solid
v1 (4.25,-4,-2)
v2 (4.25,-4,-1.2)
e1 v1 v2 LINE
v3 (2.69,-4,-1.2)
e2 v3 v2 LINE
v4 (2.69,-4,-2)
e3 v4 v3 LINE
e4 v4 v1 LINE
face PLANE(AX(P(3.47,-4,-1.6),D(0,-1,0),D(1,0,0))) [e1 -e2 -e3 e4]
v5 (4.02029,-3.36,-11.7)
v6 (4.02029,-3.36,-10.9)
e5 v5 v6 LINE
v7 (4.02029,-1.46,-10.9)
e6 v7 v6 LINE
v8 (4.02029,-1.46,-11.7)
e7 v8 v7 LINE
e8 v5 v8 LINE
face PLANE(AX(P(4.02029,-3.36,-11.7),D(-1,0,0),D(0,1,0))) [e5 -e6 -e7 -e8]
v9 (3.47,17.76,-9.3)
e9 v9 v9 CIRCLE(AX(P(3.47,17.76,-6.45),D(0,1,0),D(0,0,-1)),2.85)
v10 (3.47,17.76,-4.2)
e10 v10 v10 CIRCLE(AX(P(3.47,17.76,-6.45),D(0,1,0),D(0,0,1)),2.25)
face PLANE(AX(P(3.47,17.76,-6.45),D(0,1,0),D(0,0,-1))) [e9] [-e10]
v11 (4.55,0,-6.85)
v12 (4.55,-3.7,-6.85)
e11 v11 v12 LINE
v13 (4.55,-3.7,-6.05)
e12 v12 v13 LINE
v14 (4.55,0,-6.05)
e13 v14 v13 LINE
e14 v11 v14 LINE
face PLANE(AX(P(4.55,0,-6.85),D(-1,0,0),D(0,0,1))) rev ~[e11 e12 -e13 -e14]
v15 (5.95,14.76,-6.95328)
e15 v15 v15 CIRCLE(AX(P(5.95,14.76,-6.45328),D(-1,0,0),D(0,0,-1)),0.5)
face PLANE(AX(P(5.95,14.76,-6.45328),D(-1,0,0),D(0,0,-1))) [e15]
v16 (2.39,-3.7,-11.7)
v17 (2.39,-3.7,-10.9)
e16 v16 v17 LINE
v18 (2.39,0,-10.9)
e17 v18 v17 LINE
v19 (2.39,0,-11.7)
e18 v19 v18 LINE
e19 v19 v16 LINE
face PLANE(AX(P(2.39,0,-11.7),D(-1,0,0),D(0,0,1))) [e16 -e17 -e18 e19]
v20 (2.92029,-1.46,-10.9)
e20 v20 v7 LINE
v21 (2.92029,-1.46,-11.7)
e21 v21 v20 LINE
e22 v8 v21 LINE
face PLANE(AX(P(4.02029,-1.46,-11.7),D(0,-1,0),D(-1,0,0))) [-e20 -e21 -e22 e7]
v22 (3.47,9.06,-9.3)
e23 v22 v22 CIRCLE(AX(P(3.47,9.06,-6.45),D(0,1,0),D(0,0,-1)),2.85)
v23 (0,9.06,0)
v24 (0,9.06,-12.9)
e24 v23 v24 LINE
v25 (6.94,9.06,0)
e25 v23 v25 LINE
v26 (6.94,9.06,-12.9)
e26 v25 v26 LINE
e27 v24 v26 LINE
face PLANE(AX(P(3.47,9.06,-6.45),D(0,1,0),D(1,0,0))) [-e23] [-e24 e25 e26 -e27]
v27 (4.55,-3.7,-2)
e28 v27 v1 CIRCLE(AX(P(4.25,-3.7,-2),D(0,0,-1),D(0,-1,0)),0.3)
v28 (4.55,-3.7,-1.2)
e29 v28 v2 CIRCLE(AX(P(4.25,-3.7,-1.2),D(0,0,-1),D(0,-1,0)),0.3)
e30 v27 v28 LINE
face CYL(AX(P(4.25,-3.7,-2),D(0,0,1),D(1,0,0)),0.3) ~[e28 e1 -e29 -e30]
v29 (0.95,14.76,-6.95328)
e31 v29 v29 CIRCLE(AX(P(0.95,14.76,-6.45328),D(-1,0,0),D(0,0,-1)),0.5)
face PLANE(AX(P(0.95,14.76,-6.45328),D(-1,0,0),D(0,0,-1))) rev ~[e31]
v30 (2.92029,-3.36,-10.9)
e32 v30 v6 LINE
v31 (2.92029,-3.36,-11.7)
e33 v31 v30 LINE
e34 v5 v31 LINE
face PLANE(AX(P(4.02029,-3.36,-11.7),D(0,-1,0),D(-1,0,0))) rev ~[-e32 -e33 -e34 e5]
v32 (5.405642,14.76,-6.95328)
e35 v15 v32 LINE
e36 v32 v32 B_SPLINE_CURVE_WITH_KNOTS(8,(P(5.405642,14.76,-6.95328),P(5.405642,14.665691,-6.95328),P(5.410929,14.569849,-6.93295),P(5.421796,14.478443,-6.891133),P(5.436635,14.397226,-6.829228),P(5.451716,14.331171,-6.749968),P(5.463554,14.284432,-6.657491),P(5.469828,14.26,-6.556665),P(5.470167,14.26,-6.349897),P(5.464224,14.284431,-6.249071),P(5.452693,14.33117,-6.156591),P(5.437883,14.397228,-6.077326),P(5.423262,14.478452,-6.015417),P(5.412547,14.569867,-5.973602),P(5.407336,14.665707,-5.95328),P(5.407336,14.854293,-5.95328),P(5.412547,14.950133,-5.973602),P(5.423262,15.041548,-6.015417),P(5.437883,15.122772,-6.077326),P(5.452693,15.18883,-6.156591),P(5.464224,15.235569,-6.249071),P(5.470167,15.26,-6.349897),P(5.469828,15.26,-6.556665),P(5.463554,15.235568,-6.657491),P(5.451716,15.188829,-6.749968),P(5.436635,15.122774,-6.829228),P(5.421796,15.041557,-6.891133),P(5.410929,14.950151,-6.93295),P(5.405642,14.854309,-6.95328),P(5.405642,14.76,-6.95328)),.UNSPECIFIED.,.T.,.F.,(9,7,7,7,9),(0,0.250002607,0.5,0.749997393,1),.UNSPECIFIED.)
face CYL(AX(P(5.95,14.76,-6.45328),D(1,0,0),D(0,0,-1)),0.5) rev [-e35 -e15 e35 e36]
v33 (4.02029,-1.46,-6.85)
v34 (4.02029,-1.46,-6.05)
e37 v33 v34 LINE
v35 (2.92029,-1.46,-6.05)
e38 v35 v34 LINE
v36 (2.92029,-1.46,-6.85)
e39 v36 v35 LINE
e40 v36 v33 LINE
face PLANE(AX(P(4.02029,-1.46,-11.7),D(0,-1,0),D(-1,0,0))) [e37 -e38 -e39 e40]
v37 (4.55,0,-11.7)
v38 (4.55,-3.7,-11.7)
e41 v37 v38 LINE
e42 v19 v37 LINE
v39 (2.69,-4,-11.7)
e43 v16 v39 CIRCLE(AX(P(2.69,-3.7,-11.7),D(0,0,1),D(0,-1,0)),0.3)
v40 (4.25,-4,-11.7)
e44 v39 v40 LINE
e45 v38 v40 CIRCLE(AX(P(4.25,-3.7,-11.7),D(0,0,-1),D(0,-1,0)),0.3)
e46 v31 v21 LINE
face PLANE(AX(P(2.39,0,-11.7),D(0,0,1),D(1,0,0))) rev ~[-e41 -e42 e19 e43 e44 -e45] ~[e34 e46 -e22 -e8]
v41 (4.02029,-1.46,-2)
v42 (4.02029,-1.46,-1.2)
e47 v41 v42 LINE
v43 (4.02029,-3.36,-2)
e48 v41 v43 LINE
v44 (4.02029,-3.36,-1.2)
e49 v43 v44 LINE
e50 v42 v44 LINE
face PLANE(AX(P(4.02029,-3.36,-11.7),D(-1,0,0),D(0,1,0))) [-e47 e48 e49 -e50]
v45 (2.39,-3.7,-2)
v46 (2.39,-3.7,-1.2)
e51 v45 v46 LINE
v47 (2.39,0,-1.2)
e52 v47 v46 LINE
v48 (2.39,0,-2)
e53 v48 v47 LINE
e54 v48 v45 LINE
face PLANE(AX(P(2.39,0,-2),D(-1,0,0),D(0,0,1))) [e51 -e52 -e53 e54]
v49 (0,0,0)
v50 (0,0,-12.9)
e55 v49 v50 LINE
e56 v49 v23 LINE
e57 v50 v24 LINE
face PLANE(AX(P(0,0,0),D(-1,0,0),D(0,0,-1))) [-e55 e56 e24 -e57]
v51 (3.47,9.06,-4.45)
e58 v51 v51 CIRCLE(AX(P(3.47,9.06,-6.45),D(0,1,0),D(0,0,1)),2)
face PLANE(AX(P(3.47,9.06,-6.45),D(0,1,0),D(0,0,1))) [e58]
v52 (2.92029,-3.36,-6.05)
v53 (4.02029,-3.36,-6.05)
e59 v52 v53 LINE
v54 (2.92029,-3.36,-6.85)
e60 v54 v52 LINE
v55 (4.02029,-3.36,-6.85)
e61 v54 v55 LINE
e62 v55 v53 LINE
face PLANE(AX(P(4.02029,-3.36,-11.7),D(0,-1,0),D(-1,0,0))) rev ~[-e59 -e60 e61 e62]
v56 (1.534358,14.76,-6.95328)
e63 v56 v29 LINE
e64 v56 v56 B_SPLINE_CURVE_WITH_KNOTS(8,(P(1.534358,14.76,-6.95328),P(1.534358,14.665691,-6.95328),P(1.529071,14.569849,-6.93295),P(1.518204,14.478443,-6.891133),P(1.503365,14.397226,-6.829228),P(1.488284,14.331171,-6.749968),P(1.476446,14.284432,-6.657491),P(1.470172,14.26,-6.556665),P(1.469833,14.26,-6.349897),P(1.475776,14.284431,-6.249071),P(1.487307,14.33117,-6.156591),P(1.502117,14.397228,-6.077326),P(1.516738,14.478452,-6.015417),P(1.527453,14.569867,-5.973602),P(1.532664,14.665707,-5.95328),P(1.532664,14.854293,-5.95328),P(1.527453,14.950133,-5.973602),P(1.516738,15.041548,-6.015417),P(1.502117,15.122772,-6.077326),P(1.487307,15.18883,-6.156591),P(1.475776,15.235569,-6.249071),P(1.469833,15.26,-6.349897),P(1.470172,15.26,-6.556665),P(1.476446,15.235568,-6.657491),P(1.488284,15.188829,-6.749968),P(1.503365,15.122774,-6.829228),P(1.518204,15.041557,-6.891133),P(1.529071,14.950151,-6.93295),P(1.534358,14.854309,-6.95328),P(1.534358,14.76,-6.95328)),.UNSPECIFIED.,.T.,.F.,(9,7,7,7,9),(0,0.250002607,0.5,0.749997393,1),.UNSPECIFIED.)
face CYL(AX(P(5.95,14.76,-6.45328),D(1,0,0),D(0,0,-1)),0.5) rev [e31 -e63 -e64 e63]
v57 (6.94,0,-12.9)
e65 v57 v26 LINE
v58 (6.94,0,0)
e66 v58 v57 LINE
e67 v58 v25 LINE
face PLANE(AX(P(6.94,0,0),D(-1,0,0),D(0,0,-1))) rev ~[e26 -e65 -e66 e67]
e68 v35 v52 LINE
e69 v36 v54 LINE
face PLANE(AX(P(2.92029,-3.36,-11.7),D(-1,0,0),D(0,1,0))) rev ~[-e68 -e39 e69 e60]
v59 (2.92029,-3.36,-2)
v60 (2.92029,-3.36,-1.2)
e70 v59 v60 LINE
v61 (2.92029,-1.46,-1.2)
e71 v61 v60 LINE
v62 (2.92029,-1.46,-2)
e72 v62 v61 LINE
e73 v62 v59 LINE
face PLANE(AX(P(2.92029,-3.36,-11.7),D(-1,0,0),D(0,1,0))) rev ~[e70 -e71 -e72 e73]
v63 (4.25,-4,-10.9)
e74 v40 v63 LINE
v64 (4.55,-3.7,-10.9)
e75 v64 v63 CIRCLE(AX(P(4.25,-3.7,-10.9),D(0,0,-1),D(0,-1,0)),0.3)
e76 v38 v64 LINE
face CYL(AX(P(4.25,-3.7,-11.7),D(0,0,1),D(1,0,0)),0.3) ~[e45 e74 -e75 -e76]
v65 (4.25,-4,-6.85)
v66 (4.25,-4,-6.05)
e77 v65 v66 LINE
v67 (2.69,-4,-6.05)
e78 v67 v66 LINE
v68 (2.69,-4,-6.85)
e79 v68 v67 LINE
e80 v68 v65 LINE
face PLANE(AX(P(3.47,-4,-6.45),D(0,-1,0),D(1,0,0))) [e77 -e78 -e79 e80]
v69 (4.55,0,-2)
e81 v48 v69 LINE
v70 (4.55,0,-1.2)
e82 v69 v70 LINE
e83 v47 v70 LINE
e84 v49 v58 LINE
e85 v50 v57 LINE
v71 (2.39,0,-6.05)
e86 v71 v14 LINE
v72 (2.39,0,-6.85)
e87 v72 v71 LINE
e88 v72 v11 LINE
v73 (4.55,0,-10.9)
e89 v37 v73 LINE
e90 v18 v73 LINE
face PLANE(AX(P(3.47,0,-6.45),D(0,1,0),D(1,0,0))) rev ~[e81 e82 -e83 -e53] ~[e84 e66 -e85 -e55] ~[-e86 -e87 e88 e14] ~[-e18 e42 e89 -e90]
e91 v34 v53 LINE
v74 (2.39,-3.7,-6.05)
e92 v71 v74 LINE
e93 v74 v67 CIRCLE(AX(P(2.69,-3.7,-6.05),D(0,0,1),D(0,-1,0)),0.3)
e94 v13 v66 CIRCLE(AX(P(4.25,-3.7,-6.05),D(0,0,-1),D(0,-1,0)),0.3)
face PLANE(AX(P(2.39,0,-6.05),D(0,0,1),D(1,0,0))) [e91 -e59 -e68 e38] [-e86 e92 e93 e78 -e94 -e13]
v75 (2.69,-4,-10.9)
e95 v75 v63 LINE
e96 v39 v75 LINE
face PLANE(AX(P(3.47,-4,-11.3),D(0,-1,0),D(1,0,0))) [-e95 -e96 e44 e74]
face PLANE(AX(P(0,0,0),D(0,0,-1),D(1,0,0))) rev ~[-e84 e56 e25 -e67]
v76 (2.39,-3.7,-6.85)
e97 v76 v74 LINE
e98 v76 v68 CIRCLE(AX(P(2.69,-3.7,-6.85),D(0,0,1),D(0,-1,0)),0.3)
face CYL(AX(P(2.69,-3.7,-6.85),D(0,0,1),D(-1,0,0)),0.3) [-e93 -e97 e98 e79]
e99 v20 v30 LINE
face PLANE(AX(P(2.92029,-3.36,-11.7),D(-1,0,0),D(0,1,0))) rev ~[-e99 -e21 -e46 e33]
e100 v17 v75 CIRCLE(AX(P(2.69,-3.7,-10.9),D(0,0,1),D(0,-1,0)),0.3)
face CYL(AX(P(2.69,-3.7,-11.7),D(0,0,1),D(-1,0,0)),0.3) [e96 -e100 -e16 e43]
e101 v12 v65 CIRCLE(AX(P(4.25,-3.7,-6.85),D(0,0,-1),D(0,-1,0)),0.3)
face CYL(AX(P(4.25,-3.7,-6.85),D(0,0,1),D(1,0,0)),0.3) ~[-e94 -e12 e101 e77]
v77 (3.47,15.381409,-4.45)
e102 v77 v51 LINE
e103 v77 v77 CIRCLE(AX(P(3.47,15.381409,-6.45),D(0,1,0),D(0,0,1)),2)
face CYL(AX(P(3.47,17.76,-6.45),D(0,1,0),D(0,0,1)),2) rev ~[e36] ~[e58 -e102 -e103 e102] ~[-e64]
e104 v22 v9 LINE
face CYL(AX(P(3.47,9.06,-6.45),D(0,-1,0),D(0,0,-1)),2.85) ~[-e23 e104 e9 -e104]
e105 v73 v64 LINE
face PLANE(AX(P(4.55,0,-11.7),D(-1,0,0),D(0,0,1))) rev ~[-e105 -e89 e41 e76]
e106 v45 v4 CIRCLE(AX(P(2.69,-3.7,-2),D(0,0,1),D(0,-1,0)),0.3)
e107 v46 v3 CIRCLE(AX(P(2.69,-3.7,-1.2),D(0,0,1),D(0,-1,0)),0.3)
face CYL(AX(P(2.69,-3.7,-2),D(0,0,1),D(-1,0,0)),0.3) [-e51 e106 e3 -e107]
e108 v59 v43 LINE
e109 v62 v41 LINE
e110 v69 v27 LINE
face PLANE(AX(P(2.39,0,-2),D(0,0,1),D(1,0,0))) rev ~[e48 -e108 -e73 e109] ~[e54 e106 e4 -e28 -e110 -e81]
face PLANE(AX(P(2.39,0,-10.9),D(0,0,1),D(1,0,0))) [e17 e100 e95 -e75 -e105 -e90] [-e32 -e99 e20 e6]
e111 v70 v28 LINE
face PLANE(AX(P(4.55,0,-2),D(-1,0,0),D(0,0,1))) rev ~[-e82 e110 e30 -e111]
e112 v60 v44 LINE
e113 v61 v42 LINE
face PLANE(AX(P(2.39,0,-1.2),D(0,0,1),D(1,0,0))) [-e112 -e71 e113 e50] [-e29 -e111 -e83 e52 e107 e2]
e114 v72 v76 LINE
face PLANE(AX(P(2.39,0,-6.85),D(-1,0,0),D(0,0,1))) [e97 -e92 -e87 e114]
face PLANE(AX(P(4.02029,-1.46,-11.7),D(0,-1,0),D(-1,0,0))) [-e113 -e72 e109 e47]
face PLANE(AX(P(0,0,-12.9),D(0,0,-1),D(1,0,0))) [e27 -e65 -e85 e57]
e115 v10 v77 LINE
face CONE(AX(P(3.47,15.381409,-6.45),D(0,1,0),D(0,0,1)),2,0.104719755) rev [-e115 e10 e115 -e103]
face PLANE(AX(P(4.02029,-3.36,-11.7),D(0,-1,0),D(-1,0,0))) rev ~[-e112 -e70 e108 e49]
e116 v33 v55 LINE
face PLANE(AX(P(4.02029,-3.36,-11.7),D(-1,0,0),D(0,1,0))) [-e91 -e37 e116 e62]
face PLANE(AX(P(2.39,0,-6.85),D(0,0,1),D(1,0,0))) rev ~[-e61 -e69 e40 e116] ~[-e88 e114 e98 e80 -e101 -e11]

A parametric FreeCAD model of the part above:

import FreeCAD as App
import Part
import Sketcher
from FreeCAD import Vector


def edges_at(feature, points):
    """Names of the edges that pass closest to the given points."""
    edges = feature.Shape.Edges
    near = lambda p: min(range(len(edges)), key=lambda i: edges[i].distToShape(Part.Vertex(*p))[0])
    return sorted({f"Edge{near(p) + 1}" for p in points})

doc = App.newDocument("Part")
body = doc.addObject("PartDesign::Body", "Body")

# Sketch on XZ plane
sketch1 = body.newObject("Sketcher::SketchObject", "Sketch")
sketch1.AttachmentSupport = (doc.getObject("XZ_Plane"), [""])
sketch1.MapMode = "FlatFace"
sketch1.addGeometry([
    Part.LineSegment(Vector(0, -12.9, 0), Vector(0, 0, 0)),
    Part.LineSegment(Vector(0, 0, 0), Vector(6.94, 0, 0)),
    Part.LineSegment(Vector(6.94, 0, 0), Vector(6.94, -12.9, 0)),
    Part.LineSegment(Vector(6.94, -12.9, 0), Vector(0, -12.9, 0)),
], False)
sketch1.addConstraint([
    Sketcher.Constraint("Coincident", 0, 2, 1, 1),
    Sketcher.Constraint("Coincident", 1, 2, 2, 1),
    Sketcher.Constraint("Coincident", 2, 2, 3, 1),
    Sketcher.Constraint("Coincident", 3, 2, 0, 1),
    Sketcher.Constraint("Vertical", 0),
    Sketcher.Constraint("Horizontal", 1),
    Sketcher.Constraint("Vertical", 2),
    Sketcher.Constraint("Horizontal", 3),
    Sketcher.Constraint("Coincident", 0, 2, -1, 1),
    Sketcher.Constraint("DistanceY", 0, 1, 0, 2, 12.9),
    Sketcher.Constraint("DistanceX", 1, 1, 1, 2, 6.94),
])
pad1 = body.newObject("PartDesign::Pad", "Pad")
pad1.Profile = sketch1
pad1.Length = 9.06
pad1.Reversed = True

# Sketch on XZ plane
sketch2 = body.newObject("Sketcher::SketchObject", "Sketch001")
sketch2.AttachmentSupport = (doc.getObject("XZ_Plane"), [""])
sketch2.MapMode = "FlatFace"
sketch2.AttachmentOffset = App.Placement(Vector(0, 0, -9.06), App.Rotation())
sketch2.addGeometry(Part.Circle(Vector(3.47, -6.45, 0), Vector(0, 0, 1), 2.85), False)
sketch2.addConstraint([
    Sketcher.Constraint("Diameter", 0, 5.7),
    Sketcher.Constraint("DistanceX", -1, 1, 0, 3, 3.47),
    Sketcher.Constraint("DistanceY", 0, 3, -1, 1, 6.45),
])
pad2 = body.newObject("PartDesign::Pad", "Pad001")
pad2.Profile = sketch2
pad2.Length = 8.7
pad2.Reversed = True

# Sketch on XZ plane
sketch3 = body.newObject("Sketcher::SketchObject", "Sketch002")
sketch3.AttachmentSupport = (doc.getObject("XZ_Plane"), [""])
sketch3.MapMode = "FlatFace"
sketch3.AttachmentOffset = App.Placement(Vector(0, 0, -17.76), App.Rotation())
sketch3.addGeometry(Part.Circle(Vector(3.47, -6.45, 0), Vector(0, 0, 1), 2), False)
sketch3.addConstraint([
    Sketcher.Constraint("Diameter", 0, 4.0),
    Sketcher.Constraint("DistanceX", -1, 1, 0, 3, 3.47),
    Sketcher.Constraint("DistanceY", 0, 3, -1, 1, 6.45),
])
pocket1 = body.newObject("PartDesign::Pocket", "Pocket")
pocket1.Profile = sketch3
pocket1.Length = 8.7
pocket1.Reversed = True

# Sketch on YZ plane
sketch4 = body.newObject("Sketcher::SketchObject", "Sketch003")
sketch4.AttachmentSupport = (doc.getObject("YZ_Plane"), [""])
sketch4.MapMode = "FlatFace"
sketch4.AttachmentOffset = App.Placement(Vector(0, 0, 3.45), App.Rotation())
sketch4.addGeometry(Part.Circle(Vector(14.76, -6.45328, 0), Vector(0, 0, 1), 0.5), False)
sketch4.addConstraint([
    Sketcher.Constraint("Diameter", 0, 1.0),
    Sketcher.Constraint("DistanceX", -1, 1, 0, 3, 14.76),
    Sketcher.Constraint("DistanceY", 0, 3, -1, 1, 6.45328),
])
pocket2 = body.newObject("PartDesign::Pocket", "Pocket001")
pocket2.Profile = sketch4
pocket2.Type = "TwoLengths"
pocket2.Length = 2.5
pocket2.Length2 = 2.5
doc.recompute()

chamfer = body.newObject("PartDesign::Chamfer", "Chamfer")
chamfer.Base = (pocket2, edges_at(pocket2, [(3.47, 17.76, -8.45)]))
chamfer.ChamferType = "Two distances"
chamfer.Size = 0.25
chamfer.Size2 = 2.378591

# Sketch on XZ plane
sketch5 = body.newObject("Sketcher::SketchObject", "Sketch004")
sketch5.AttachmentSupport = (doc.getObject("XZ_Plane"), [""])
sketch5.MapMode = "FlatFace"
sketch5.addGeometry([
    Part.LineSegment(Vector(2.39, -1.2, 0), Vector(2.39, -2, 0)),  # 0
    Part.LineSegment(Vector(2.39, -2, 0), Vector(4.55, -2, 0)),  # 1
    Part.LineSegment(Vector(4.55, -2, 0), Vector(4.55, -1.2, 0)),  # 2
    Part.LineSegment(Vector(4.55, -1.2, 0), Vector(2.39, -1.2, 0)),  # 3
    Part.LineSegment(Vector(2.39, -10.9, 0), Vector(2.39, -11.7, 0)),  # 4
    Part.LineSegment(Vector(2.39, -11.7, 0), Vector(4.55, -11.7, 0)),  # 5
    Part.LineSegment(Vector(4.55, -11.7, 0), Vector(4.55, -10.9, 0)),  # 6
    Part.LineSegment(Vector(4.55, -10.9, 0), Vector(2.39, -10.9, 0)),  # 7
    Part.LineSegment(Vector(2.39, -6.05, 0), Vector(2.39, -6.85, 0)),  # 8
    Part.LineSegment(Vector(2.39, -6.85, 0), Vector(4.55, -6.85, 0)),  # 9
    Part.LineSegment(Vector(4.55, -6.85, 0), Vector(4.55, -6.05, 0)),  # 10
    Part.LineSegment(Vector(4.55, -6.05, 0), Vector(2.39, -6.05, 0)),  # 11
], False)
sketch5.addConstraint([
    Sketcher.Constraint("Coincident", 0, 2, 1, 1),
    Sketcher.Constraint("Coincident", 1, 2, 2, 1),
    Sketcher.Constraint("Coincident", 2, 2, 3, 1),
    Sketcher.Constraint("Coincident", 3, 2, 0, 1),
    Sketcher.Constraint("Coincident", 4, 2, 5, 1),
    Sketcher.Constraint("Coincident", 5, 2, 6, 1),
    Sketcher.Constraint("Coincident", 6, 2, 7, 1),
    Sketcher.Constraint("Coincident", 7, 2, 4, 1),
    Sketcher.Constraint("Coincident", 8, 2, 9, 1),
    Sketcher.Constraint("Coincident", 9, 2, 10, 1),
    Sketcher.Constraint("Coincident", 10, 2, 11, 1),
    Sketcher.Constraint("Coincident", 11, 2, 8, 1),
    Sketcher.Constraint("Vertical", 0),
    Sketcher.Constraint("Horizontal", 1),
    Sketcher.Constraint("Vertical", 2),
    Sketcher.Constraint("Horizontal", 3),
    Sketcher.Constraint("Vertical", 4),
    Sketcher.Constraint("Horizontal", 5),
    Sketcher.Constraint("Vertical", 6),
    Sketcher.Constraint("Horizontal", 7),
    Sketcher.Constraint("Vertical", 8),
    Sketcher.Constraint("Horizontal", 9),
    Sketcher.Constraint("Vertical", 10),
    Sketcher.Constraint("Horizontal", 11),
    Sketcher.Constraint("Vertical", 3, 2, 4, 2),
    Sketcher.Constraint("Vertical", 2, 2, 5, 2),
    Sketcher.Constraint("Vertical", 7, 2, 8, 2),
    Sketcher.Constraint("Vertical", 6, 2, 9, 2),
    Sketcher.Constraint("Equal", 2, 4),
    Sketcher.Constraint("Equal", 6, 8),
    Sketcher.Constraint("DistanceY", 0, 2, 0, 1, 0.8),
    Sketcher.Constraint("DistanceY", 0, 2, -1, 1, 2.0),
    Sketcher.Constraint("DistanceX", 1, 1, 1, 2, 2.16),
    Sketcher.Constraint("DistanceY", 4, 2, -1, 1, 11.7),
    Sketcher.Constraint("DistanceX", -1, 1, 0, 2, 2.39),
    Sketcher.Constraint("DistanceY", 8, 2, -1, 1, 6.85),
])
pad3 = body.newObject("PartDesign::Pad", "Pad002")
pad3.Profile = sketch5
pad3.Length = 4
doc.recompute()

fillet = body.newObject("PartDesign::Fillet", "Fillet")
fillet.Base = (pad3, edges_at(pad3, [
    (2.39, -4, -1.6),
    (4.55, -4, -1.6),
    (4.55, -4, -11.3),
    (2.39, -4, -11.3),
    (2.39, -4, -6.45),
    (4.55, -4, -6.45),
]))
fillet.Radius = 0.3

# Sketch on XY plane
sketch6 = body.newObject("Sketcher::SketchObject", "Sketch005")
sketch6.AttachmentSupport = (doc.getObject("XY_Plane"), [""])
sketch6.MapMode = "FlatFace"
sketch6.AttachmentOffset = App.Placement(Vector(0, 0, -11.7), App.Rotation())
sketch6.addGeometry([
    Part.LineSegment(Vector(4.02029, -1.46, 0), Vector(4.02029, -3.36, 0)),
    Part.LineSegment(Vector(4.02029, -3.36, 0), Vector(2.92029, -3.36, 0)),
    Part.LineSegment(Vector(2.92029, -3.36, 0), Vector(2.92029, -1.46, 0)),
    Part.LineSegment(Vector(2.92029, -1.46, 0), Vector(4.02029, -1.46, 0)),
], False)
sketch6.addConstraint([
    Sketcher.Constraint("Coincident", 0, 2, 1, 1),
    Sketcher.Constraint("Coincident", 1, 2, 2, 1),
    Sketcher.Constraint("Coincident", 2, 2, 3, 1),
    Sketcher.Constraint("Coincident", 3, 2, 0, 1),
    Sketcher.Constraint("Vertical", 0),
    Sketcher.Constraint("Horizontal", 1),
    Sketcher.Constraint("Vertical", 2),
    Sketcher.Constraint("Horizontal", 3),
    Sketcher.Constraint("DistanceX", 1, 2, 1, 1, 1.1),
    Sketcher.Constraint("DistanceY", 0, 2, 0, 1, 1.9),
    Sketcher.Constraint("DistanceY", 0, 2, -1, 1, 3.36),
    Sketcher.Constraint("DistanceX", -1, 1, 0, 2, 4.02029),
])
pocket3 = body.newObject("PartDesign::Pocket", "Pocket002")
pocket3.Profile = sketch6
pocket3.Type = "ThroughAll"
pocket3.Reversed = True

doc.recompute()
